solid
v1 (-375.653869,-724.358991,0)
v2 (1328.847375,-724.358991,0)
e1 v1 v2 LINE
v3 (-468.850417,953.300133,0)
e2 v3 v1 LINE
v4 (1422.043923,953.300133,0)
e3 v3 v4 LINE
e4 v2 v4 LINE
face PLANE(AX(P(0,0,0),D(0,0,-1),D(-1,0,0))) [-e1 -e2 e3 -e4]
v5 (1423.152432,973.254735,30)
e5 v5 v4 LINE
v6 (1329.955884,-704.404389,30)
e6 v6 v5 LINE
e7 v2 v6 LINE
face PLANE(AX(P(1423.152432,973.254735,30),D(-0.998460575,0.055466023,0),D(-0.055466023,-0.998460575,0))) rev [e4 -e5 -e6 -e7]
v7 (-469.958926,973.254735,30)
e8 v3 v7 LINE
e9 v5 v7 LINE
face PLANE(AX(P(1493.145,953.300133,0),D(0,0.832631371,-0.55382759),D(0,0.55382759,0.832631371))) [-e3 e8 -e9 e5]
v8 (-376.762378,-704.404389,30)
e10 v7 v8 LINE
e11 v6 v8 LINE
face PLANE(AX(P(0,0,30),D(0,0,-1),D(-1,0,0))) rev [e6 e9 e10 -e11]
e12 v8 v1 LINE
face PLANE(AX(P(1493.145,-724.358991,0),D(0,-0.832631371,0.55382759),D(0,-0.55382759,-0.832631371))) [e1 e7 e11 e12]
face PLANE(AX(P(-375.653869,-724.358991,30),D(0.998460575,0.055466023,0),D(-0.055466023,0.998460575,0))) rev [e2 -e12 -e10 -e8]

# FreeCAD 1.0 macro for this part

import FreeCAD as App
import Part
import Sketcher
Q = App.Units.Quantity

doc = App.newDocument("Part")
params = doc.addObject("Spreadsheet::Sheet", "Params")
for row, (alias, value) in enumerate([
    ("pad1_length", "30 mm"),
    ("sketch2_height", "30 mm"),
], start=1):
    params.set(f"A{row}", alias)
    params.set(f"B{row}", "=" + value)
    params.setAlias(f"B{row}", alias)

body = doc.addObject("PartDesign::Body", "Body")

sketch1 = body.newObject("Sketcher::SketchObject", "Sketch")
sketch1.AttachmentSupport = (doc.getObject("XY_Plane"), [""])
sketch1.MapMode = "FlatFace"
sketch1.addGeometry(Part.LineSegment(App.Vector(1423, 973, 0), App.Vector(-470, 973, 0)), False)
sketch1.addGeometry(Part.LineSegment(App.Vector(-470, 973, 0), App.Vector(-376, -724, 0)), False)
sketch1.addGeometry(Part.LineSegment(App.Vector(-376, -724, 0), App.Vector(1329, -724, 0)), False)
sketch1.addGeometry(Part.LineSegment(App.Vector(1329, -724, 0), App.Vector(1423, 973, 0)), False)
sketch1.addConstraint(Sketcher.Constraint("Coincident", 0, 2, 1, 1))
sketch1.addConstraint(Sketcher.Constraint("Coincident", 1, 2, 2, 1))
sketch1.addConstraint(Sketcher.Constraint("Coincident", 2, 2, 3, 1))
sketch1.addConstraint(Sketcher.Constraint("Coincident", 3, 2, 0, 1))
sketch1.addConstraint(Sketcher.Constraint("Horizontal", 0))
sketch1.addConstraint(Sketcher.Constraint("Horizontal", 2))
sketch1.addConstraint(Sketcher.Constraint("Equal", 1, 3))
sketch1.addConstraint(Sketcher.Constraint("DistanceX", 0, 2, 2, 2, Q("1798.806301 mm")))
sketch1.addConstraint(Sketcher.Constraint("DistanceX", 0, 2, 0, 1, Q("1893.111357 mm")))
sketch1.addConstraint(Sketcher.Constraint("DistanceX", 1, 2, -1, 1, Q("375.653869 mm")))
sketch1.addConstraint(Sketcher.Constraint("DistanceY", 1, 2, -1, 1, Q("724.358991 mm")))
sketch1.addConstraint(Sketcher.Constraint("Distance", 1, Q("1700.231103 mm")))
pad1 = body.newObject("PartDesign::Pad", "Pad")
pad1.Profile = sketch1
pad1.setExpression("Length", "Params.pad1_length")

sketch2 = body.newObject("Sketcher::SketchObject", "Sketch001")
sketch2.AttachmentSupport = (doc.getObject("YZ_Plane"), [""])
sketch2.MapMode = "FlatFace"
sketch2.addGeometry(Part.LineSegment(App.Vector(-724, 30, 0), App.Vector(-724, 0, 0)), False)
sketch2.addGeometry(Part.LineSegment(App.Vector(-724, 0, 0), App.Vector(-704, 30, 0)), False)
sketch2.addGeometry(Part.LineSegment(App.Vector(-704, 30, 0), App.Vector(-724, 30, 0)), False)
sketch2.addGeometry(Part.LineSegment(App.Vector(973, 0, 0), App.Vector(973, 30, 0)), False)
sketch2.addGeometry(Part.LineSegment(App.Vector(973, 30, 0), App.Vector(953, 0, 0)), False)
sketch2.addGeometry(Part.LineSegment(App.Vector(953, 0, 0), App.Vector(973, 0, 0)), False)
sketch2.addConstraint(Sketcher.Constraint("Coincident", 0, 2, 1, 1))
sketch2.addConstraint(Sketcher.Constraint("Coincident", 1, 2, 2, 1))
sketch2.addConstraint(Sketcher.Constraint("Coincident", 2, 2, 0, 1))
sketch2.addConstraint(Sketcher.Constraint("Coincident", 3, 2, 4, 1))
sketch2.addConstraint(Sketcher.Constraint("Coincident", 4, 2, 5, 1))
sketch2.addConstraint(Sketcher.Constraint("Coincident", 5, 2, 3, 1))
sketch2.addConstraint(Sketcher.Constraint("Vertical", 0))
sketch2.addConstraint(Sketcher.Constraint("Horizontal", 2))
sketch2.addConstraint(Sketcher.Constraint("Vertical", 3))
sketch2.addConstraint(Sketcher.Constraint("Horizontal", 5))
sketch2.addConstraint(Sketcher.Constraint("PointOnObject", 0, 2, -1))
sketch2.addConstraint(Sketcher.Constraint("PointOnObject", 4, 2, -1))
sketch2.addConstraint(Sketcher.Constraint("Parallel", 1, 4))
sketch2.addConstraint(Sketcher.Constraint("Horizontal", 2, 2, 3, 2))
sketch2.addConstraint(Sketcher.Constraint("DistanceY", 0, 2, 0, 1, Q("30 mm")))
sketch2.addConstraint(Sketcher.Constraint("Angle", 1, Q("56.37 deg")))
sketch2.addConstraint(Sketcher.Constraint("DistanceX", 0, 2, -1, 1, Q("724.358991 mm")))
sketch2.addConstraint(Sketcher.Constraint("DistanceX", 1, 2, 4, 2, Q("1657.704521 mm")))
sketch2.setExpression("Constraints[14]", "Params.sketch2_height")
pocket1 = body.newObject("PartDesign::Pocket", "Pocket")
pocket1.Profile = sketch2
pocket1.Type = "ThroughAll"
pocket1.Midplane = True

doc.recompute()
